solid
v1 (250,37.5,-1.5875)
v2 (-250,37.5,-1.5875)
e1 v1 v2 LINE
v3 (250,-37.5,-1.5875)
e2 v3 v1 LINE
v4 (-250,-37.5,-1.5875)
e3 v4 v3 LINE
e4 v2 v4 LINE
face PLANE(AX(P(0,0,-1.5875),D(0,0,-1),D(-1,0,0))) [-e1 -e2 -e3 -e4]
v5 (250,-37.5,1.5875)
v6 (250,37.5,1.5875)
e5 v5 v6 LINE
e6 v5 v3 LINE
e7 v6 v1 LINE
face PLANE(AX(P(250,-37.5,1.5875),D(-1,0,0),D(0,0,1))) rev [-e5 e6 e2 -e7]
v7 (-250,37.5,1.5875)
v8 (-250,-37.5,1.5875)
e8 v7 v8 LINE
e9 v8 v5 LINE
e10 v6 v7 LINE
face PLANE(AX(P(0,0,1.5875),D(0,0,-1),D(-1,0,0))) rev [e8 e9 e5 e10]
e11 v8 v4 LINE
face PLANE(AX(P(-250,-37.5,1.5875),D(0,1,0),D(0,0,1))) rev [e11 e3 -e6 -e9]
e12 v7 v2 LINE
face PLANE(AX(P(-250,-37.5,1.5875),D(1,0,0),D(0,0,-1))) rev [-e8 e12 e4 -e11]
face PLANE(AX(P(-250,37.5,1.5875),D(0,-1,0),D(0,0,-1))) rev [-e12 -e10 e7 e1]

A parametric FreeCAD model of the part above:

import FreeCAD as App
import Part
import Sketcher


def add_polygon(sketch, points):
    """Adds a closed chain of lines whose ends are joined by coincident constraints."""
    first, n = sketch.GeometryCount, len(points)
    for a, b in zip(points, points[1:] + points[:1]):
        sketch.addGeometry(Part.LineSegment(App.Vector(*a, 0), App.Vector(*b, 0)), False)
    for i in range(n):
        sketch.addConstraint(Sketcher.Constraint("Coincident", first + i, 2, first + (i + 1) % n, 1))

doc = App.newDocument("Part")
body = doc.addObject("PartDesign::Body", "Body")

sketch1 = body.newObject("Sketcher::SketchObject", "Sketch")
sketch1.AttachmentSupport = (doc.getObject("XY_Plane"), [""])
sketch1.MapMode = "FlatFace"
add_polygon(sketch1, [(-250, 38), (-250, -38), (250, -38), (250, 38)])
sketch1.addConstraint([
    Sketcher.Constraint("Vertical", 0),
    Sketcher.Constraint("Horizontal", 1),
    Sketcher.Constraint("Vertical", 2),
    Sketcher.Constraint("Horizontal", 3),
    Sketcher.Constraint("Symmetric", 0, 2, 2, 2, -1, 1),
    Sketcher.Constraint("DistanceX", 1, 1, 1, 2, 500.0),
    Sketcher.Constraint("DistanceY", 0, 2, 0, 1, 75.0),
])
pad1 = body.newObject("PartDesign::Pad", "Pad")
pad1.Profile = sketch1
pad1.Length = 3.175
pad1.Midplane = True

doc.recompute()
